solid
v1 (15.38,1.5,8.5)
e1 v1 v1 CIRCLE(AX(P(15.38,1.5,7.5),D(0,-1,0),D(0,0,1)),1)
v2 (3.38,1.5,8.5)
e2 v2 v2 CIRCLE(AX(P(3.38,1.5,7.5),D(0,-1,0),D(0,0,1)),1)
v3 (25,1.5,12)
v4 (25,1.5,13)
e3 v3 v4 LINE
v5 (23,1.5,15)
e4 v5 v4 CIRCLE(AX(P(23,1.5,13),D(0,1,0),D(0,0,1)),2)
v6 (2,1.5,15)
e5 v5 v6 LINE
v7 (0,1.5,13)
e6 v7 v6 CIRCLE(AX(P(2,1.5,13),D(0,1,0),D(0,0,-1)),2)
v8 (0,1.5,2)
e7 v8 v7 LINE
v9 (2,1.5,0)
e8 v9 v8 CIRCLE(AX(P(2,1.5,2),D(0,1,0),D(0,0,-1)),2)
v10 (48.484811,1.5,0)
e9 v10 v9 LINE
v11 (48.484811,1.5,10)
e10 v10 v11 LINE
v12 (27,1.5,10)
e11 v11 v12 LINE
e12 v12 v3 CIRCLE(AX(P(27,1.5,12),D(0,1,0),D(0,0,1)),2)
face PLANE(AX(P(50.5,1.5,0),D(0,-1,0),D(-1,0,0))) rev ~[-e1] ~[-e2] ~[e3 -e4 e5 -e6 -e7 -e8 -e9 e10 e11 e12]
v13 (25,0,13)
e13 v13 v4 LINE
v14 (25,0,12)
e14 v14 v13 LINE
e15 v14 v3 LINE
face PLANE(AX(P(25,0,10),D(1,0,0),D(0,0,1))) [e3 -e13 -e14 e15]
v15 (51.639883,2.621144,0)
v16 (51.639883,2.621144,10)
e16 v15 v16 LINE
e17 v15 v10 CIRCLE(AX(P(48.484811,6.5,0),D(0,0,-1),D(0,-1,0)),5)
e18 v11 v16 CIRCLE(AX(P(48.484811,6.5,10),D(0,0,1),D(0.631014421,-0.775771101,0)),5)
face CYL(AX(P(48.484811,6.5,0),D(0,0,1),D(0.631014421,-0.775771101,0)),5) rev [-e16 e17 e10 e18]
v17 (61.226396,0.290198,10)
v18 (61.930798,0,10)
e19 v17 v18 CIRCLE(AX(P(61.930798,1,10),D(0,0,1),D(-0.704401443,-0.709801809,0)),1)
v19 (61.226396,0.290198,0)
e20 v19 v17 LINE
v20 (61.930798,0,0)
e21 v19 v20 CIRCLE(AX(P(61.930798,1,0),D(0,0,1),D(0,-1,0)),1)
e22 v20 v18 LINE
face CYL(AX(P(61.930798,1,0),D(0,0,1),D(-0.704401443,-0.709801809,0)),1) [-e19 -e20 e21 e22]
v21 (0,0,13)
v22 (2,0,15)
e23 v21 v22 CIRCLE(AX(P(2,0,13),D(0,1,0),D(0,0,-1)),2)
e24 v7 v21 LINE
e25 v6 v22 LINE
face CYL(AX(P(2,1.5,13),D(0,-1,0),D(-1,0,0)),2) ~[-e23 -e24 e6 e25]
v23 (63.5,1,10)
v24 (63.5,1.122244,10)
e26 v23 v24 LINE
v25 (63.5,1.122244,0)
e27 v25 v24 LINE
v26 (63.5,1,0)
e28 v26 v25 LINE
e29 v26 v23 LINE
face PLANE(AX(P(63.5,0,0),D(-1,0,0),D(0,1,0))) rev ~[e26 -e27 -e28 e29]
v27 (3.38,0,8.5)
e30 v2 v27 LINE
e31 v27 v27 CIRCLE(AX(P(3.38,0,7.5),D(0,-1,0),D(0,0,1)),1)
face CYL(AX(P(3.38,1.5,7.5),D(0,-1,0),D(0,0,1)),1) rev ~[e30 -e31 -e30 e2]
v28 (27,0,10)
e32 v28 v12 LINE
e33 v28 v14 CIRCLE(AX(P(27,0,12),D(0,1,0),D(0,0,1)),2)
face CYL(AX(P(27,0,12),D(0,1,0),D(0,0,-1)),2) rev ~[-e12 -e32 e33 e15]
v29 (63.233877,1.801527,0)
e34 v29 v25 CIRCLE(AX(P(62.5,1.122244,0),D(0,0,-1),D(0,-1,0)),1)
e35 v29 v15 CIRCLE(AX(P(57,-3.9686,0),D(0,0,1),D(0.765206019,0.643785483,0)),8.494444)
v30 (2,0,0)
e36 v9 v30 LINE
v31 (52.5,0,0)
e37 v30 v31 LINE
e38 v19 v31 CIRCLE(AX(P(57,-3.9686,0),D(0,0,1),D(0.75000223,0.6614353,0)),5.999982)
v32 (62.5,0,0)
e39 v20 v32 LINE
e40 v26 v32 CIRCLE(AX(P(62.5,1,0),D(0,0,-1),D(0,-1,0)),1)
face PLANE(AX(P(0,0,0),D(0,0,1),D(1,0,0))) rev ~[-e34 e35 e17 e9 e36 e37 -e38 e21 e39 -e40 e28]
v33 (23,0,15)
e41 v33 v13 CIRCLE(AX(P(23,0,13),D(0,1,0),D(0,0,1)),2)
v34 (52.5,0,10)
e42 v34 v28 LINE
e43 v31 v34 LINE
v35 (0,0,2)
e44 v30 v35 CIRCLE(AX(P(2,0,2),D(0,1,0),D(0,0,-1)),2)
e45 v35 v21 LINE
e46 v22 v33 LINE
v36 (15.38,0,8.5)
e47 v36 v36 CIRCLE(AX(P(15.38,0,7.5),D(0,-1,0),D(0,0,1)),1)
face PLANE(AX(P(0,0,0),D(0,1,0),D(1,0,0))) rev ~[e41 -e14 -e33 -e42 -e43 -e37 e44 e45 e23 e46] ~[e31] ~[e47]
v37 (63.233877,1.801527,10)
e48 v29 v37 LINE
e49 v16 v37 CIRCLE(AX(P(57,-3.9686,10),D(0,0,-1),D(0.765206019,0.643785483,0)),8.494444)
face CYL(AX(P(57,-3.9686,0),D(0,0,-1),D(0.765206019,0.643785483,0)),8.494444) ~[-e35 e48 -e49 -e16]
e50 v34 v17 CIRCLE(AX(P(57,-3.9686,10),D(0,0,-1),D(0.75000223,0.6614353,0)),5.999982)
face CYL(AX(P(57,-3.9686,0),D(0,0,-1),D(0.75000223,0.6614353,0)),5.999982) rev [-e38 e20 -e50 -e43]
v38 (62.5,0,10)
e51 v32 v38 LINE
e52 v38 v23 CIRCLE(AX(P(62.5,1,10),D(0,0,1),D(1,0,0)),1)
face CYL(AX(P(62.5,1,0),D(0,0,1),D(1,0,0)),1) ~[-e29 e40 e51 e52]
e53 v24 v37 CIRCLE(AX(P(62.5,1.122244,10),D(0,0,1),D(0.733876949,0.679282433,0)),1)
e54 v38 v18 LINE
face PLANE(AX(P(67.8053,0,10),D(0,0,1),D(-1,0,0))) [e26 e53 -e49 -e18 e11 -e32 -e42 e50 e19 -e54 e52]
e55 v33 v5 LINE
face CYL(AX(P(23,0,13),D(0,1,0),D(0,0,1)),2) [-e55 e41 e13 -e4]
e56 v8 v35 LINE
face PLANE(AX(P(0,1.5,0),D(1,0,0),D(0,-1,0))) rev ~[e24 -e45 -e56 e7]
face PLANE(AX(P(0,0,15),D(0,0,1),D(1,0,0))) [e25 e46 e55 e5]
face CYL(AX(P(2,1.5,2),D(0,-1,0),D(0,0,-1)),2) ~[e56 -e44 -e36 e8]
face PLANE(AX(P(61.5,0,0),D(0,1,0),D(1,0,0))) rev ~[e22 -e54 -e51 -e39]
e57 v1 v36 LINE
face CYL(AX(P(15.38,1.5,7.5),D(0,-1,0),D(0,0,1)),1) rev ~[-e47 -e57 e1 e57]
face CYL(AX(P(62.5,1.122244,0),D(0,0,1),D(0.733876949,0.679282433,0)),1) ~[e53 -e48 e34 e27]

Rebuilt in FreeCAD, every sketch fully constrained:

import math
import FreeCAD as App
import Part
import Sketcher

V = App.Vector


def edges_at(feature, points):
    """Names of the edges that pass closest to the given points."""
    edges = feature.Shape.Edges
    near = lambda p: min(range(len(edges)), key=lambda i: edges[i].distToShape(Part.Vertex(*p))[0])
    return sorted({f"Edge{near(p) + 1}" for p in points})


def add_polygon(sketch, points):
    """Adds a closed chain of lines whose ends are joined by coincident constraints."""
    first, n = sketch.GeometryCount, len(points)
    for a, b in zip(points, points[1:] + points[:1]):
        sketch.addGeometry(Part.LineSegment(App.Vector(*a, 0), App.Vector(*b, 0)), False)
    for i in range(n):
        sketch.addConstraint(Sketcher.Constraint("Coincident", first + i, 2, first + (i + 1) % n, 1))

doc = App.newDocument("Part")
body = doc.addObject("PartDesign::Body", "Body")

sketch1 = body.newObject("Sketcher::SketchObject", "Sketch")
sketch1.AttachmentSupport = (doc.getObject("XY_Plane"), [""])
sketch1.MapMode = "FlatFace"
sketch1.addGeometry([
    Part.LineSegment(V(0, 1.5, 0), V(0, 0, 0)),
    Part.LineSegment(V(0, 0, 0), V(52.5, 0, 0)),
    Part.ArcOfCircle(Part.Circle(V(57, -3.9686, 0), V(0, 0, 1), 5.999982), math.radians(41.409429), math.radians(138.590571)),
    Part.LineSegment(V(61.5, 0, 0), V(63.5, 0, 0)),
    Part.LineSegment(V(63.5, 0, 0), V(63.5, 1.5, 0)),
    Part.ArcOfCircle(Part.Circle(V(57, -3.9686, 0), V(0, 0, 1), 8.494444), math.radians(40.074676), math.radians(139.925324)),
    Part.LineSegment(V(50.5, 1.5, 0), V(0, 1.5, 0)),
], False)
sketch1.addConstraint([
    Sketcher.Constraint("Coincident", 0, 2, 1, 1),
    Sketcher.Constraint("Coincident", 1, 2, 2, 2),
    Sketcher.Constraint("Coincident", 2, 1, 3, 1),
    Sketcher.Constraint("Coincident", 3, 2, 4, 1),
    Sketcher.Constraint("Coincident", 4, 2, 5, 1),
    Sketcher.Constraint("Coincident", 5, 2, 6, 1),
    Sketcher.Constraint("Coincident", 6, 2, 0, 1),
    Sketcher.Constraint("Vertical", 0),
    Sketcher.Constraint("Horizontal", 1),
    Sketcher.Constraint("Horizontal", 3),
    Sketcher.Constraint("Vertical", 4),
    Sketcher.Constraint("Horizontal", 6),
    Sketcher.Constraint("Coincident", 0, 2, -1, 1),
    Sketcher.Constraint("Coincident", 5, 3, 2, 3),
    Sketcher.Constraint("PointOnObject", 2, 1, -1),
    Sketcher.Constraint("Horizontal", 4, 2, 5, 2),
    Sketcher.Constraint("Radius", 2, 6.0),
    Sketcher.Constraint("DistanceX", 3, 1, 3, 2, 2.0),
    Sketcher.Constraint("DistanceY", 0, 2, 0, 1, 1.5),
    Sketcher.Constraint("DistanceX", 1, 2, 2, 1, 9.0),
    Sketcher.Constraint("DistanceX", -1, 1, 3, 2, 63.5),
])
pad1 = body.newObject("PartDesign::Pad", "Pad")
pad1.Profile = sketch1
pad1.Length = 15

sketch2 = body.newObject("Sketcher::SketchObject", "Sketch001")
sketch2.AttachmentSupport = (doc.getObject("XZ_Plane"), [""])
sketch2.MapMode = "FlatFace"
sketch2.AttachmentOffset = App.Placement(V(0, 0, -1.5), App.Rotation())
sketch2.addGeometry([
    Part.Circle(V(3.38, 7.5, 0), V(0, 0, 1), 1),
    Part.Circle(V(15.38, 7.5, 0), V(0, 0, 1), 1),
], False)
sketch2.addConstraint([
    Sketcher.Constraint("Equal", 0, 1),
    Sketcher.Constraint("Horizontal", 0, 3, 1, 3),
    Sketcher.Constraint("Diameter", 0, 2.0),
    Sketcher.Constraint("DistanceX", 0, 3, 1, 3, 12.0),
    Sketcher.Constraint("DistanceY", -1, 1, 0, 3, 7.5),
    Sketcher.Constraint("DistanceX", -1, 1, 0, 3, 3.38),
])
doc.recompute()
hole = body.newObject("PartDesign::Hole", "Hole")
hole.Profile = sketch2
hole.ThreadType = "None"
hole.Diameter = 2
hole.DepthType = "ThroughAll"
hole.Reversed = True
doc.recompute()

fillet = body.newObject("PartDesign::Fillet", "Fillet")
fillet.Base = (hole, edges_at(hole, [(63.5, 0, 7.5), (63.5, 1.5, 7.5), (61.5, 0, 7.5)]))
fillet.Radius = 1
doc.recompute()

fillet2 = body.newObject("PartDesign::Fillet", "Fillet001")
fillet2.Base = (fillet, edges_at(fillet, [(50.5, 1.5, 7.5)]))
fillet2.Radius = 5

sketch3 = body.newObject("Sketcher::SketchObject", "Sketch002")
sketch3.AttachmentSupport = (doc.getObject("XZ_Plane"), [""])
sketch3.MapMode = "FlatFace"
add_polygon(sketch3, [(67.8053, 20.9607), (25, 20.9607), (25, 10), (67.8053, 10)])
sketch3.addConstraint([
    Sketcher.Constraint("Horizontal", 0),
    Sketcher.Constraint("Vertical", 1),
    Sketcher.Constraint("Horizontal", 2),
    Sketcher.Constraint("Vertical", 3),
    Sketcher.Constraint("DistanceX", -1, 1, 0, 2, 25.0),
    Sketcher.Constraint("DistanceY", -1, 1, 1, 2, 10.0),
    Sketcher.Constraint("DistanceX", 0, 2, 0, 1, 42.8053),
    Sketcher.Constraint("DistanceY", 1, 2, 1, 1, 10.9607),
])
pocket1 = body.newObject("PartDesign::Pocket", "Pocket")
pocket1.Profile = sketch3
pocket1.Length = 8
doc.recompute()

fillet3 = body.newObject("PartDesign::Fillet", "Fillet002")
fillet3.Base = (pocket1, edges_at(pocket1, [
    (25, 0.75, 15),
    (25, 0.75, 10),
    (0, 0.75, 15),
    (0, 0.75, 0),
]))
fillet3.Radius = 2

doc.recompute()
